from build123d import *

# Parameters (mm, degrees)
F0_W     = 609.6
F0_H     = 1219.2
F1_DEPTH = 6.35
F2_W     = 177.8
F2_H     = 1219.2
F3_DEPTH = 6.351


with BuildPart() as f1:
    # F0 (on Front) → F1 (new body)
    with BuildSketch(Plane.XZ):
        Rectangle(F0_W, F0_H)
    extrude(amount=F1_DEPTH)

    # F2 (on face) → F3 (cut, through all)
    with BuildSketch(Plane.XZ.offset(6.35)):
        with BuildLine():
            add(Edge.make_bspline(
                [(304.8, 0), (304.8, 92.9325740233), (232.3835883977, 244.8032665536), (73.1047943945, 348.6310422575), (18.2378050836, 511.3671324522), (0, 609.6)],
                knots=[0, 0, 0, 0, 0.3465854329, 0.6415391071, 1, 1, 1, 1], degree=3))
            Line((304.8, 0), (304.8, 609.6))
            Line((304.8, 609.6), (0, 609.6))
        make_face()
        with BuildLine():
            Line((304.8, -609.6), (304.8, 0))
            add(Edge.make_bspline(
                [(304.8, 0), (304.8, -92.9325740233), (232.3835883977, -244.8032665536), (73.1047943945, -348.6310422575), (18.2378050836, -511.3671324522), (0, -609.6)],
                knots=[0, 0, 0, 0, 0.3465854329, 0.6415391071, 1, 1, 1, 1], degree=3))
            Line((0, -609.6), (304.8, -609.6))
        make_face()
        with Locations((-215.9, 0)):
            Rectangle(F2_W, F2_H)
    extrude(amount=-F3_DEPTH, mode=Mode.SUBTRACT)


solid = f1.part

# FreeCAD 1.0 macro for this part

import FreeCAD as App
import Part
import Sketcher
Q = App.Units.Quantity

doc = App.newDocument("Part")
body = doc.addObject("PartDesign::Body", "Body")

# Sketch on XZ plane
sketch1 = body.newObject("Sketcher::SketchObject", "Sketch")
sketch1.AttachmentSupport = (doc.getObject("XZ_Plane"), [""])
sketch1.MapMode = "FlatFace"
sketch1.addGeometry(Part.LineSegment(App.Vector(-304.8, 609.6, 0), App.Vector(-304.8, -609.6, 0)), False)
sketch1.addGeometry(Part.LineSegment(App.Vector(-304.8, -609.6, 0), App.Vector(304.8, -609.6, 0)), False)
sketch1.addGeometry(Part.LineSegment(App.Vector(304.8, -609.6, 0), App.Vector(304.8, 609.6, 0)), False)
sketch1.addGeometry(Part.LineSegment(App.Vector(304.8, 609.6, 0), App.Vector(-304.8, 609.6, 0)), False)
sketch1.addConstraint(Sketcher.Constraint("Coincident", 0, 2, 1, 1))
sketch1.addConstraint(Sketcher.Constraint("Coincident", 1, 2, 2, 1))
sketch1.addConstraint(Sketcher.Constraint("Coincident", 2, 2, 3, 1))
sketch1.addConstraint(Sketcher.Constraint("Coincident", 3, 2, 0, 1))
sketch1.addConstraint(Sketcher.Constraint("Vertical", 0))
sketch1.addConstraint(Sketcher.Constraint("Horizontal", 1))
sketch1.addConstraint(Sketcher.Constraint("Vertical", 2))
sketch1.addConstraint(Sketcher.Constraint("Horizontal", 3))
sketch1.addConstraint(Sketcher.Constraint("Symmetric", 0, 2, 2, 2, -1, 1))
sketch1.addConstraint(Sketcher.Constraint("DistanceX", 1, 1, 1, 2, Q("24 in")))
sketch1.addConstraint(Sketcher.Constraint("DistanceY", 0, 2, 0, 1, Q("48 in")))
pad1 = body.newObject("PartDesign::Pad", "Pad")
pad1.Profile = sketch1
pad1.Length = Q("0.25 in")

# Sketch on XZ plane
sketch2 = body.newObject("Sketcher::SketchObject", "Sketch001")
sketch2.AttachmentSupport = (doc.getObject("XZ_Plane"), [""])
sketch2.MapMode = "FlatFace"
sketch2.AttachmentOffset = App.Placement(App.Vector(0, 0, 0.25 * 25.4), App.Rotation())
sketch2.addGeometry(Part.BSplineCurve([App.Vector(304.8, 0, 0), App.Vector(304.8, 92.932574, 0), App.Vector(232.383588, 244.803267, 0), App.Vector(73.104794, 348.631042, 0), App.Vector(18.237805, 511.367132, 0), App.Vector(0, 609.6, 0)], [4, 1, 1, 4], [0, 0.346585433, 0.641539107, 1], False, 3, [1, 1, 1, 1, 1, 1], False), False)
sketch2.addGeometry(Part.LineSegment(App.Vector(304.8, 0, 0), App.Vector(304.8, 609.6, 0)), False)
sketch2.addGeometry(Part.LineSegment(App.Vector(304.8, 609.6, 0), App.Vector(0, 609.6, 0)), False)
sketch2.addGeometry(Part.LineSegment(App.Vector(304.8, -609.6, 0), App.Vector(304.8, 0, 0)), False)
sketch2.addGeometry(Part.BSplineCurve([App.Vector(304.8, 0, 0), App.Vector(304.8, -92.932574, 0), App.Vector(232.383588, -244.803267, 0), App.Vector(73.104794, -348.631042, 0), App.Vector(18.237805, -511.367132, 0), App.Vector(0, -609.6, 0)], [4, 1, 1, 4], [0, 0.346585433, 0.641539107, 1], False, 3, [1, 1, 1, 1, 1, 1], False), False)
sketch2.addGeometry(Part.LineSegment(App.Vector(0, -609.6, 0), App.Vector(304.8, -609.6, 0)), False)
sketch2.addGeometry(Part.LineSegment(App.Vector(-304.8, 609.6, 0), App.Vector(-304.8, -609.6, 0)), False)
sketch2.addGeometry(Part.LineSegment(App.Vector(-304.8, -609.6, 0), App.Vector(-127, -609.6, 0)), False)
sketch2.addGeometry(Part.LineSegment(App.Vector(-127, -609.6, 0), App.Vector(-127, 609.6, 0)), False)
sketch2.addGeometry(Part.LineSegment(App.Vector(-127, 609.6, 0), App.Vector(-304.8, 609.6, 0)), False)
sketch2.addConstraint(Sketcher.Constraint("Block", 0))
sketch2.addConstraint(Sketcher.Constraint("Block", 4))
sketch2.addConstraint(Sketcher.Constraint("Coincident", 0, 1, 1, 1))
sketch2.addConstraint(Sketcher.Constraint("Coincident", 1, 2, 2, 1))
sketch2.addConstraint(Sketcher.Constraint("Coincident", 2, 2, 0, 2))
sketch2.addConstraint(Sketcher.Constraint("Coincident", 3, 2, 4, 1))
sketch2.addConstraint(Sketcher.Constraint("Coincident", 4, 2, 5, 1))
sketch2.addConstraint(Sketcher.Constraint("Coincident", 5, 2, 3, 1))
sketch2.addConstraint(Sketcher.Constraint("Coincident", 6, 2, 7, 1))
sketch2.addConstraint(Sketcher.Constraint("Coincident", 7, 2, 8, 1))
sketch2.addConstraint(Sketcher.Constraint("Coincident", 8, 2, 9, 1))
sketch2.addConstraint(Sketcher.Constraint("Coincident", 9, 2, 6, 1))
sketch2.addConstraint(Sketcher.Constraint("Vertical", 1))
sketch2.addConstraint(Sketcher.Constraint("Horizontal", 2))
sketch2.addConstraint(Sketcher.Constraint("Vertical", 3))
sketch2.addConstraint(Sketcher.Constraint("Horizontal", 5))
sketch2.addConstraint(Sketcher.Constraint("Vertical", 6))
sketch2.addConstraint(Sketcher.Constraint("Horizontal", 7))
sketch2.addConstraint(Sketcher.Constraint("Vertical", 8))
sketch2.addConstraint(Sketcher.Constraint("Horizontal", 9))
sketch2.addConstraint(Sketcher.Constraint("Symmetric", 1, 2, 6, 2, -1, 1))
sketch2.addConstraint(Sketcher.Constraint("Horizontal", 2, 2, 8, 2))
sketch2.addConstraint(Sketcher.Constraint("DistanceX", 7, 1, 7, 2, Q("7 in")))
pocket1 = body.newObject("PartDesign::Pocket", "Pocket")
pocket1.Profile = sketch2
pocket1.Type = "ThroughAll"

doc.recompute()
